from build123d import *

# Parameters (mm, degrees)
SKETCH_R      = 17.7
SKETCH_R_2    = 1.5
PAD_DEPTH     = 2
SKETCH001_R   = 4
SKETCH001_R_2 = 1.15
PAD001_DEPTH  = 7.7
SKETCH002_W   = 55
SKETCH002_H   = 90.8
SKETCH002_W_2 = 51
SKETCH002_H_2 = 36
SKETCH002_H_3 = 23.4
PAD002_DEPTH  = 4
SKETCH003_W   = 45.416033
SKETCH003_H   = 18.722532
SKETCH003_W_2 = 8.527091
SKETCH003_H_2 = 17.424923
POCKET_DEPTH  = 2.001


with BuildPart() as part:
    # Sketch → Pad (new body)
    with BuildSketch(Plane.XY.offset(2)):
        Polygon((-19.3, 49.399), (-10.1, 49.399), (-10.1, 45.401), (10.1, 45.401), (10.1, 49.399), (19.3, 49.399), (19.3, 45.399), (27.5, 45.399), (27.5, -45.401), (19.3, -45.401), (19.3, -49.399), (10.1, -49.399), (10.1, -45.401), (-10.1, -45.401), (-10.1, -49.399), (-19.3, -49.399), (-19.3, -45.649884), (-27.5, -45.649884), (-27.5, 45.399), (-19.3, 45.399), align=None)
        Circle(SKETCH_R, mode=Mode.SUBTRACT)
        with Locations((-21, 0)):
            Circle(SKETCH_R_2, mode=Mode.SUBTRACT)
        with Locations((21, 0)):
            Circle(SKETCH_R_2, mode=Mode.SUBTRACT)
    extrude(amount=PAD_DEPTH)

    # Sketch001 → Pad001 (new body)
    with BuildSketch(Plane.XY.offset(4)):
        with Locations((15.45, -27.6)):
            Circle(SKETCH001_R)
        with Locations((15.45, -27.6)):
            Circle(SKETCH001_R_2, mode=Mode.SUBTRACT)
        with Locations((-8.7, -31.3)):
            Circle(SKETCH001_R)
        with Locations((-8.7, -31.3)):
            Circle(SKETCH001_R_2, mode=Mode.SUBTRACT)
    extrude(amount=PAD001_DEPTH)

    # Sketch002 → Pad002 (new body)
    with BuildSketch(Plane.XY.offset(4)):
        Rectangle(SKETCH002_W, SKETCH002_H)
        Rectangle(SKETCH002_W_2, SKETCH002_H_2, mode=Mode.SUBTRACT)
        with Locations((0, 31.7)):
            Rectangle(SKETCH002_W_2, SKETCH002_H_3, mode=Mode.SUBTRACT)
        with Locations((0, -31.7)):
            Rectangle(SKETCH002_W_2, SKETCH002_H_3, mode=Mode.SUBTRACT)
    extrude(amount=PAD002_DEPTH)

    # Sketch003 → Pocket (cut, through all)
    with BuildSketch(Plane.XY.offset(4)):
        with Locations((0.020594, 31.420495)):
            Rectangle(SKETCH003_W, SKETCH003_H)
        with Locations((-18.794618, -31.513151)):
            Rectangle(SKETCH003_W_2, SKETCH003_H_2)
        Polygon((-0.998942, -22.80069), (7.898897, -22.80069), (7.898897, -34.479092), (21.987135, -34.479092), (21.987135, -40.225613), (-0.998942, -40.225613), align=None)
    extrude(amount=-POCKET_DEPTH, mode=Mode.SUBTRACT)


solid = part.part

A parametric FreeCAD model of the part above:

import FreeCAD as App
import Part
import Sketcher

V = App.Vector

doc = App.newDocument("Part")
body = doc.addObject("PartDesign::Body", "Body")

# Sketch on XY plane
sketch1 = doc.addObject("Sketcher::SketchObject", "Sketch")
body.addObject(sketch1)
sketch1.AttachmentSupport = (doc.XY_Plane, [""])
sketch1.MapMode = "FlatFace"
sketch1.AttachmentOffset = App.Placement(V(0, 0, 2), App.Rotation())
sketch1.addGeometry(Part.LineSegment(V(-10.1, 49.399, 0), V(-19.3, 49.399, 0)), False)
sketch1.addGeometry(Part.LineSegment(V(-19.3, 49.399, 0), V(-19.3, 45.399, 0)), False)
sketch1.addGeometry(Part.LineSegment(V(-19.3, 45.399, 0), V(-27.5, 45.399, 0)), False)
sketch1.addGeometry(Part.LineSegment(V(-27.5, 45.399, 0), V(-27.5, -45.649884, 0)), False)
sketch1.addGeometry(Part.LineSegment(V(-27.5, -45.649884, 0), V(-19.3, -45.649884, 0)), False)
sketch1.addGeometry(Part.LineSegment(V(-19.3, -45.649884, 0), V(-19.3, -49.399, 0)), False)
sketch1.addGeometry(Part.LineSegment(V(-19.3, -49.399, 0), V(-10.1, -49.399, 0)), False)
sketch1.addGeometry(Part.LineSegment(V(-10.1, -49.399, 0), V(-10.1, -45.401, 0)), False)
sketch1.addGeometry(Part.LineSegment(V(-10.1, -45.401, 0), V(10.1, -45.401, 0)), False)
sketch1.addGeometry(Part.LineSegment(V(10.1, -45.401, 0), V(10.1, -49.399, 0)), False)
sketch1.addGeometry(Part.LineSegment(V(10.1, -49.399, 0), V(19.3, -49.399, 0)), False)
sketch1.addGeometry(Part.LineSegment(V(19.3, -49.399, 0), V(19.3, -45.401, 0)), False)
sketch1.addGeometry(Part.LineSegment(V(19.3, -45.401, 0), V(27.5, -45.401, 0)), False)
sketch1.addGeometry(Part.LineSegment(V(27.5, -45.401, 0), V(27.5, 45.399, 0)), False)
sketch1.addGeometry(Part.LineSegment(V(27.5, 45.399, 0), V(19.3, 45.399, 0)), False)
sketch1.addGeometry(Part.LineSegment(V(19.3, 45.399, 0), V(19.3, 49.399, 0)), False)
sketch1.addGeometry(Part.LineSegment(V(19.3, 49.399, 0), V(10.1, 49.399, 0)), False)
sketch1.addGeometry(Part.LineSegment(V(10.1, 49.399, 0), V(10.1, 45.401, 0)), False)
sketch1.addGeometry(Part.LineSegment(V(10.1, 45.401, 0), V(-10.1, 45.401, 0)), False)
sketch1.addGeometry(Part.LineSegment(V(-10.1, 45.401, 0), V(-10.1, 49.399, 0)), False)
sketch1.addGeometry(Part.Circle(V(21, 0, 0), V(0, 0, 1), 1.5), False)
sketch1.addGeometry(Part.Circle(V(0, 0, 0), V(0, 0, 1), 17.7), False)
sketch1.addGeometry(Part.Circle(V(-21, 0, 0), V(0, 0, 1), 1.5), False)
sketch1.addConstraint(Sketcher.Constraint("Coincident", 0, 2, 1, 1))
sketch1.addConstraint(Sketcher.Constraint("Coincident", 1, 2, 2, 1))
sketch1.addConstraint(Sketcher.Constraint("Coincident", 2, 2, 3, 1))
sketch1.addConstraint(Sketcher.Constraint("Coincident", 3, 2, 4, 1))
sketch1.addConstraint(Sketcher.Constraint("Coincident", 4, 2, 5, 1))
sketch1.addConstraint(Sketcher.Constraint("Coincident", 5, 2, 6, 1))
sketch1.addConstraint(Sketcher.Constraint("Coincident", 6, 2, 7, 1))
sketch1.addConstraint(Sketcher.Constraint("Coincident", 7, 2, 8, 1))
sketch1.addConstraint(Sketcher.Constraint("Coincident", 8, 2, 9, 1))
sketch1.addConstraint(Sketcher.Constraint("Coincident", 9, 2, 10, 1))
sketch1.addConstraint(Sketcher.Constraint("Coincident", 10, 2, 11, 1))
sketch1.addConstraint(Sketcher.Constraint("Coincident", 11, 2, 12, 1))
sketch1.addConstraint(Sketcher.Constraint("Coincident", 12, 2, 13, 1))
sketch1.addConstraint(Sketcher.Constraint("Coincident", 13, 2, 14, 1))
sketch1.addConstraint(Sketcher.Constraint("Coincident", 14, 2, 15, 1))
sketch1.addConstraint(Sketcher.Constraint("Coincident", 15, 2, 16, 1))
sketch1.addConstraint(Sketcher.Constraint("Coincident", 16, 2, 17, 1))
sketch1.addConstraint(Sketcher.Constraint("Coincident", 17, 2, 18, 1))
sketch1.addConstraint(Sketcher.Constraint("Coincident", 18, 2, 19, 1))
sketch1.addConstraint(Sketcher.Constraint("Coincident", 19, 2, 0, 1))
sketch1.addConstraint(Sketcher.Constraint("Horizontal", 0))
sketch1.addConstraint(Sketcher.Constraint("Vertical", 1))
sketch1.addConstraint(Sketcher.Constraint("Horizontal", 2))
sketch1.addConstraint(Sketcher.Constraint("Vertical", 3))
sketch1.addConstraint(Sketcher.Constraint("Horizontal", 4))
sketch1.addConstraint(Sketcher.Constraint("Vertical", 5))
sketch1.addConstraint(Sketcher.Constraint("Horizontal", 6))
sketch1.addConstraint(Sketcher.Constraint("Vertical", 7))
sketch1.addConstraint(Sketcher.Constraint("Horizontal", 8))
sketch1.addConstraint(Sketcher.Constraint("Vertical", 9))
sketch1.addConstraint(Sketcher.Constraint("Horizontal", 10))
sketch1.addConstraint(Sketcher.Constraint("Vertical", 11))
sketch1.addConstraint(Sketcher.Constraint("Horizontal", 12))
sketch1.addConstraint(Sketcher.Constraint("Vertical", 13))
sketch1.addConstraint(Sketcher.Constraint("Horizontal", 14))
sketch1.addConstraint(Sketcher.Constraint("Vertical", 15))
sketch1.addConstraint(Sketcher.Constraint("Horizontal", 16))
sketch1.addConstraint(Sketcher.Constraint("Vertical", 17))
sketch1.addConstraint(Sketcher.Constraint("Horizontal", 18))
sketch1.addConstraint(Sketcher.Constraint("Vertical", 19))
sketch1.addConstraint(Sketcher.Constraint("Coincident", 21, 3, -1, 1))
sketch1.addConstraint(Sketcher.Constraint("Equal", 20, 22))
sketch1.addConstraint(Sketcher.Constraint("Symmetric", 20, 3, 22, 3, -1, 1))
sketch1.addConstraint(Sketcher.Constraint("Symmetric", 0, 2, 10, 2, -1, 1))
sketch1.addConstraint(Sketcher.Constraint("Symmetric", 5, 2, 15, 2, -1, 1))
sketch1.addConstraint(Sketcher.Constraint("Symmetric", 7, 2, 17, 2, -1, 1))
sketch1.addConstraint(Sketcher.Constraint("Symmetric", 6, 2, 9, 2, -2))
sketch1.addConstraint(Sketcher.Constraint("Symmetric", 2, 2, 13, 2, -2))
sketch1.addConstraint(Sketcher.Constraint("PointOnObject", 20, 3, -1))
sketch1.addConstraint(Sketcher.Constraint("Horizontal", 8, 2, 11, 2))
sketch1.addConstraint(Sketcher.Constraint("Vertical", 1, 2, 4, 2))
sketch1.addConstraint(Sketcher.Constraint("Vertical", 7, 2, 18, 2))
sketch1.addConstraint(Sketcher.Constraint("Diameter", 20, 3.0))
sketch1.addConstraint(Sketcher.Constraint("Diameter", 21, 35.4))
sketch1.addConstraint(Sketcher.Constraint("DistanceY", 1, 2, 1, 1, 4.0))
sketch1.addConstraint(Sketcher.Constraint("DistanceX", 0, 2, 0, 1, 9.2))
sketch1.addConstraint(Sketcher.Constraint("DistanceX", 2, 2, 2, 1, 8.2))
sketch1.addConstraint(Sketcher.Constraint("DistanceX", 8, 1, 8, 2, 20.2))
sketch1.addConstraint(Sketcher.Constraint("DistanceY", 13, 1, 13, 2, 90.8))
sketch1.addConstraint(Sketcher.Constraint("DistanceX", -1, 1, 20, 3, 21.0))
sketch1.addConstraint(Sketcher.Constraint("DistanceY", 7, 1, 7, 2, 3.998))
sketch1.addConstraint(Sketcher.Constraint("DistanceY", 3, 2, 3, 1, 91.048884))
pad1 = doc.addObject("PartDesign::Pad", "Pad")
body.addObject(pad1)
pad1.Profile = sketch1
pad1.Length = 2

# Sketch on XY plane
sketch2 = doc.addObject("Sketcher::SketchObject", "Sketch001")
body.addObject(sketch2)
sketch2.AttachmentSupport = (doc.XY_Plane, [""])
sketch2.MapMode = "FlatFace"
sketch2.AttachmentOffset = App.Placement(V(0, 0, 4), App.Rotation())
sketch2.addGeometry(Part.Circle(V(15.45, -27.6, 0), V(0, 0, 1), 4), False)
sketch2.addGeometry(Part.Circle(V(15.45, -27.6, 0), V(0, 0, 1), 1.15), False)
sketch2.addGeometry(Part.Circle(V(-8.7, -31.3, 0), V(0, 0, 1), 4), False)
sketch2.addGeometry(Part.Circle(V(-8.7, -31.3, 0), V(0, 0, 1), 1.15), False)
sketch2.addConstraint(Sketcher.Constraint("Coincident", 1, 3, 0, 3))
sketch2.addConstraint(Sketcher.Constraint("Coincident", 3, 3, 2, 3))
sketch2.addConstraint(Sketcher.Constraint("Equal", 0, 2))
sketch2.addConstraint(Sketcher.Constraint("Equal", 1, 3))
sketch2.addConstraint(Sketcher.Constraint("Diameter", 0, 8.0))
sketch2.addConstraint(Sketcher.Constraint("Diameter", 1, 2.3))
sketch2.addConstraint(Sketcher.Constraint("DistanceY", 0, 3, -1, 1, 27.6))
sketch2.addConstraint(Sketcher.Constraint("DistanceX", 2, 3, -1, 1, 8.7))
sketch2.addConstraint(Sketcher.Constraint("DistanceY", 2, 3, -1, 1, 31.3))
sketch2.addConstraint(Sketcher.Constraint("DistanceX", -1, 1, 0, 3, 15.45))
pad2 = doc.addObject("PartDesign::Pad", "Pad001")
body.addObject(pad2)
pad2.Profile = sketch2
pad2.Length = 7.7

# Sketch on XY plane
sketch3 = doc.addObject("Sketcher::SketchObject", "Sketch002")
body.addObject(sketch3)
sketch3.AttachmentSupport = (doc.XY_Plane, [""])
sketch3.MapMode = "FlatFace"
sketch3.AttachmentOffset = App.Placement(V(0, 0, 4), App.Rotation())
sketch3.addGeometry(Part.LineSegment(V(-27.5, 45.4, 0), V(-27.5, -45.4, 0)), False)
sketch3.addGeometry(Part.LineSegment(V(-27.5, -45.4, 0), V(27.5, -45.4, 0)), False)
sketch3.addGeometry(Part.LineSegment(V(27.5, -45.4, 0), V(27.5, 45.4, 0)), False)
sketch3.addGeometry(Part.LineSegment(V(27.5, 45.4, 0), V(-27.5, 45.4, 0)), False)
sketch3.addGeometry(Part.LineSegment(V(25.5, -43.4, 0), V(-25.5, -43.4, 0)), False)
sketch3.addGeometry(Part.LineSegment(V(-25.5, -43.4, 0), V(-25.5, -20, 0)), False)
sketch3.addGeometry(Part.LineSegment(V(-25.5, -20, 0), V(25.5, -20, 0)), False)
sketch3.addGeometry(Part.LineSegment(V(25.5, -20, 0), V(25.5, -43.4, 0)), False)
sketch3.addGeometry(Part.LineSegment(V(25.5, -18, 0), V(-25.5, -18, 0)), False)
sketch3.addGeometry(Part.LineSegment(V(-25.5, -18, 0), V(-25.5, 18, 0)), False)
sketch3.addGeometry(Part.LineSegment(V(-25.5, 18, 0), V(25.5, 18, 0)), False)
sketch3.addGeometry(Part.LineSegment(V(25.5, 18, 0), V(25.5, -18, 0)), False)
sketch3.addGeometry(Part.LineSegment(V(25.5, 20, 0), V(-25.5, 20, 0)), False)
sketch3.addGeometry(Part.LineSegment(V(-25.5, 20, 0), V(-25.5, 43.4, 0)), False)
sketch3.addGeometry(Part.LineSegment(V(-25.5, 43.4, 0), V(25.5, 43.4, 0)), False)
sketch3.addGeometry(Part.LineSegment(V(25.5, 43.4, 0), V(25.5, 20, 0)), False)
sketch3.addConstraint(Sketcher.Constraint("Coincident", 0, 2, 1, 1))
sketch3.addConstraint(Sketcher.Constraint("Coincident", 1, 2, 2, 1))
sketch3.addConstraint(Sketcher.Constraint("Coincident", 2, 2, 3, 1))
sketch3.addConstraint(Sketcher.Constraint("Coincident", 3, 2, 0, 1))
sketch3.addConstraint(Sketcher.Constraint("Coincident", 4, 2, 5, 1))
sketch3.addConstraint(Sketcher.Constraint("Coincident", 5, 2, 6, 1))
sketch3.addConstraint(Sketcher.Constraint("Coincident", 6, 2, 7, 1))
sketch3.addConstraint(Sketcher.Constraint("Coincident", 7, 2, 4, 1))
sketch3.addConstraint(Sketcher.Constraint("Coincident", 8, 2, 9, 1))
sketch3.addConstraint(Sketcher.Constraint("Coincident", 9, 2, 10, 1))
sketch3.addConstraint(Sketcher.Constraint("Coincident", 10, 2, 11, 1))
sketch3.addConstraint(Sketcher.Constraint("Coincident", 11, 2, 8, 1))
sketch3.addConstraint(Sketcher.Constraint("Coincident", 12, 2, 13, 1))
sketch3.addConstraint(Sketcher.Constraint("Coincident", 13, 2, 14, 1))
sketch3.addConstraint(Sketcher.Constraint("Coincident", 14, 2, 15, 1))
sketch3.addConstraint(Sketcher.Constraint("Coincident", 15, 2, 12, 1))
sketch3.addConstraint(Sketcher.Constraint("Vertical", 0))
sketch3.addConstraint(Sketcher.Constraint("Horizontal", 1))
sketch3.addConstraint(Sketcher.Constraint("Vertical", 2))
sketch3.addConstraint(Sketcher.Constraint("Horizontal", 3))
sketch3.addConstraint(Sketcher.Constraint("Horizontal", 4))
sketch3.addConstraint(Sketcher.Constraint("Vertical", 5))
sketch3.addConstraint(Sketcher.Constraint("Horizontal", 6))
sketch3.addConstraint(Sketcher.Constraint("Vertical", 7))
sketch3.addConstraint(Sketcher.Constraint("Horizontal", 8))
sketch3.addConstraint(Sketcher.Constraint("Vertical", 9))
sketch3.addConstraint(Sketcher.Constraint("Horizontal", 10))
sketch3.addConstraint(Sketcher.Constraint("Vertical", 11))
sketch3.addConstraint(Sketcher.Constraint("Horizontal", 12))
sketch3.addConstraint(Sketcher.Constraint("Vertical", 13))
sketch3.addConstraint(Sketcher.Constraint("Horizontal", 14))
sketch3.addConstraint(Sketcher.Constraint("Vertical", 15))
sketch3.addConstraint(Sketcher.Constraint("Symmetric", 0, 2, 2, 2, -1, 1))
sketch3.addConstraint(Sketcher.Constraint("Symmetric", 8, 2, 10, 2, -1, 1))
sketch3.addConstraint(Sketcher.Constraint("Symmetric", 6, 2, 12, 2, -1, 1))
sketch3.addConstraint(Sketcher.Constraint("Symmetric", 4, 2, 14, 2, -1, 1))
sketch3.addConstraint(Sketcher.Constraint("Vertical", 5, 2, 8, 2))
sketch3.addConstraint(Sketcher.Constraint("Vertical", 7, 2, 10, 2))
sketch3.addConstraint(Sketcher.Constraint("DistanceX", 1, 1, 1, 2, 55.0))
sketch3.addConstraint(Sketcher.Constraint("DistanceX", 4, 2, 4, 1, 51.0))
sketch3.addConstraint(Sketcher.Constraint("DistanceY", 9, 1, 9, 2, 36.0))
sketch3.addConstraint(Sketcher.Constraint("DistanceY", 0, 2, 0, 1, 90.8))
sketch3.addConstraint(Sketcher.Constraint("DistanceY", 5, 1, 5, 2, 23.4))
sketch3.addConstraint(Sketcher.Constraint("DistanceY", 5, 2, -1, 1, 20.0))
pad3 = doc.addObject("PartDesign::Pad", "Pad002")
body.addObject(pad3)
pad3.Profile = sketch3
pad3.Length = 4

# Sketch on XY plane
sketch4 = doc.addObject("Sketcher::SketchObject", "Sketch003")
body.addObject(sketch4)
sketch4.AttachmentSupport = (doc.XY_Plane, [""])
sketch4.MapMode = "FlatFace"
sketch4.AttachmentOffset = App.Placement(V(0, 0, 4), App.Rotation())
sketch4.addGeometry(Part.LineSegment(V(-22.687423, 40.781761, 0), V(-22.687423, 22.059229, 0)), False)
sketch4.addGeometry(Part.LineSegment(V(-22.687423, 22.059229, 0), V(22.72861, 22.059229, 0)), False)
sketch4.addGeometry(Part.LineSegment(V(22.72861, 22.059229, 0), V(22.72861, 40.781761, 0)), False)
sketch4.addGeometry(Part.LineSegment(V(22.72861, 40.781761, 0), V(-22.687423, 40.781761, 0)), False)
sketch4.addGeometry(Part.LineSegment(V(-23.058163, -22.80069, 0), V(-23.058163, -40.225612, 0)), False)
sketch4.addGeometry(Part.LineSegment(V(-23.058163, -40.225612, 0), V(-14.531073, -40.225612, 0)), False)
sketch4.addGeometry(Part.LineSegment(V(-14.531073, -40.225612, 0), V(-14.531073, -22.80069, 0)), False)
sketch4.addGeometry(Part.LineSegment(V(-14.531073, -22.80069, 0), V(-23.058163, -22.80069, 0)), False)
sketch4.addGeometry(Part.LineSegment(V(7.898897, -22.80069, 0), V(-0.998942, -22.80069, 0)), False)
sketch4.addGeometry(Part.LineSegment(V(-0.998942, -22.80069, 0), V(-0.998942, -40.225613, 0)), False)
sketch4.addGeometry(Part.LineSegment(V(-0.998942, -40.225613, 0), V(21.987135, -40.225613, 0)), False)
sketch4.addGeometry(Part.LineSegment(V(21.987135, -40.225613, 0), V(21.987135, -34.479092, 0)), False)
sketch4.addGeometry(Part.LineSegment(V(21.987135, -34.479092, 0), V(7.898897, -34.479092, 0)), False)
sketch4.addGeometry(Part.LineSegment(V(7.898897, -34.479092, 0), V(7.898897, -22.80069, 0)), False)
sketch4.addConstraint(Sketcher.Constraint("Coincident", 0, 2, 1, 1))
sketch4.addConstraint(Sketcher.Constraint("Coincident", 1, 2, 2, 1))
sketch4.addConstraint(Sketcher.Constraint("Coincident", 2, 2, 3, 1))
sketch4.addConstraint(Sketcher.Constraint("Coincident", 3, 2, 0, 1))
sketch4.addConstraint(Sketcher.Constraint("Coincident", 4, 2, 5, 1))
sketch4.addConstraint(Sketcher.Constraint("Coincident", 5, 2, 6, 1))
sketch4.addConstraint(Sketcher.Constraint("Coincident", 6, 2, 7, 1))
sketch4.addConstraint(Sketcher.Constraint("Coincident", 7, 2, 4, 1))
sketch4.addConstraint(Sketcher.Constraint("Coincident", 8, 2, 9, 1))
sketch4.addConstraint(Sketcher.Constraint("Coincident", 9, 2, 10, 1))
sketch4.addConstraint(Sketcher.Constraint("Coincident", 10, 2, 11, 1))
sketch4.addConstraint(Sketcher.Constraint("Coincident", 11, 2, 12, 1))
sketch4.addConstraint(Sketcher.Constraint("Coincident", 12, 2, 13, 1))
sketch4.addConstraint(Sketcher.Constraint("Coincident", 13, 2, 8, 1))
sketch4.addConstraint(Sketcher.Constraint("Vertical", 0))
sketch4.addConstraint(Sketcher.Constraint("Horizontal", 1))
sketch4.addConstraint(Sketcher.Constraint("Vertical", 2))
sketch4.addConstraint(Sketcher.Constraint("Horizontal", 3))
sketch4.addConstraint(Sketcher.Constraint("Vertical", 4))
sketch4.addConstraint(Sketcher.Constraint("Horizontal", 5))
sketch4.addConstraint(Sketcher.Constraint("Vertical", 6))
sketch4.addConstraint(Sketcher.Constraint("Horizontal", 7))
sketch4.addConstraint(Sketcher.Constraint("Horizontal", 8))
sketch4.addConstraint(Sketcher.Constraint("Vertical", 9))
sketch4.addConstraint(Sketcher.Constraint("Horizontal", 10))
sketch4.addConstraint(Sketcher.Constraint("Vertical", 11))
sketch4.addConstraint(Sketcher.Constraint("Horizontal", 12))
sketch4.addConstraint(Sketcher.Constraint("Vertical", 13))
sketch4.addConstraint(Sketcher.Constraint("Horizontal", 7, 2, 8, 2))
sketch4.addConstraint(Sketcher.Constraint("Horizontal", 5, 2, 9, 2))
sketch4.addConstraint(Sketcher.Constraint("DistanceX", 5, 1, 5, 2, 8.527091))
sketch4.addConstraint(Sketcher.Constraint("DistanceX", 8, 2, 8, 1, 8.897839))
sketch4.addConstraint(Sketcher.Constraint("DistanceY", 11, 1, 11, 2, 5.746521))
sketch4.addConstraint(Sketcher.Constraint("DistanceX", 4, 2, 10, 2, 45.045299))
sketch4.addConstraint(Sketcher.Constraint("DistanceX", 1, 1, 1, 2, 45.416033))
sketch4.addConstraint(Sketcher.Constraint("DistanceX", 10, 1, 10, 2, 22.986077))
sketch4.addConstraint(Sketcher.Constraint("DistanceY", 0, 2, 0, 1, 18.722532))
sketch4.addConstraint(Sketcher.Constraint("DistanceY", 4, 2, 4, 1, 17.424923))
sketch4.addConstraint(Sketcher.Constraint("DistanceY", -1, 1, 0, 2, 22.059229))
sketch4.addConstraint(Sketcher.Constraint("DistanceX", -1, 1, 1, 2, 22.72861))
sketch4.addConstraint(Sketcher.Constraint("DistanceY", 6, 2, -1, 1, 22.80069))
sketch4.addConstraint(Sketcher.Constraint("DistanceX", 8, 2, -1, 1, 0.998942))
pocket1 = doc.addObject("PartDesign::Pocket", "Pocket")
body.addObject(pocket1)
pocket1.Profile = sketch4
pocket1.Type = "ThroughAll"

doc.recompute()
